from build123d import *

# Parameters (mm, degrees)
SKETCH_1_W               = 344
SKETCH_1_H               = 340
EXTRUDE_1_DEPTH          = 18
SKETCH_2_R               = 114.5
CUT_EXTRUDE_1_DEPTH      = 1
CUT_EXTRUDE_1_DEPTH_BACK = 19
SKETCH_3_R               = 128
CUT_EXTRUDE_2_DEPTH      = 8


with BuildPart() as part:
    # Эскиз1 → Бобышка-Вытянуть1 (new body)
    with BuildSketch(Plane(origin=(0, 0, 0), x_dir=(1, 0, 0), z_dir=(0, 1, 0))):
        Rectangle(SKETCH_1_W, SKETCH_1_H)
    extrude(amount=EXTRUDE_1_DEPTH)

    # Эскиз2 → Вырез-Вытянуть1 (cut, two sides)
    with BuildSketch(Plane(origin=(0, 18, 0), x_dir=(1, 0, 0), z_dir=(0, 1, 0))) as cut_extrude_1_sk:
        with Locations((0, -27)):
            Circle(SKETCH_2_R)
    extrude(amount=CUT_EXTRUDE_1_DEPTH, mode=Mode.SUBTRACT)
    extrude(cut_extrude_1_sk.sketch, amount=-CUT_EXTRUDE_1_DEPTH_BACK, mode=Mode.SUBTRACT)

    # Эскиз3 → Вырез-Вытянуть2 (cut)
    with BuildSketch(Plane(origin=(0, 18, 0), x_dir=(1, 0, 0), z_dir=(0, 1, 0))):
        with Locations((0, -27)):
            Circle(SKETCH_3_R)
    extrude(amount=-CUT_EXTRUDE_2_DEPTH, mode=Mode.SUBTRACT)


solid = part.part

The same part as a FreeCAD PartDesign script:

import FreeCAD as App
import Part
import Sketcher
from FreeCAD import Vector

doc = App.newDocument("Part")
params = doc.addObject("Spreadsheet::Sheet", "Params")
for row, (alias, value) in enumerate([
    ("sketch1_width", "344 mm"),
    ("sketch1_height", "340 mm"),
    ("pad1_length", "18 mm"),
    ("sketch2_diameter", "229 mm"),
    ("sketch3_diameter", "256 mm"),
    ("pocket2_length", "8 mm"),
], start=1):
    params.set(f"A{row}", alias)
    params.set(f"B{row}", "=" + value)
    params.setAlias(f"B{row}", alias)

body = doc.addObject("PartDesign::Body", "Body")

sketch1 = body.newObject("Sketcher::SketchObject", "Sketch")
sketch1.AttachmentSupport = (doc.getObject("XZ_Plane"), [""])
sketch1.MapMode = "FlatFace"
sketch1.addGeometry(Part.LineSegment(Vector(-172, -170, 0), Vector(-172, 170, 0)), False)
sketch1.addGeometry(Part.LineSegment(Vector(-172, 170, 0), Vector(172, 170, 0)), False)
sketch1.addGeometry(Part.LineSegment(Vector(172, 170, 0), Vector(172, -170, 0)), False)
sketch1.addGeometry(Part.LineSegment(Vector(172, -170, 0), Vector(-172, -170, 0)), False)
sketch1.addConstraint(Sketcher.Constraint("Coincident", 0, 2, 1, 1))
sketch1.addConstraint(Sketcher.Constraint("Coincident", 1, 2, 2, 1))
sketch1.addConstraint(Sketcher.Constraint("Coincident", 2, 2, 3, 1))
sketch1.addConstraint(Sketcher.Constraint("Coincident", 3, 2, 0, 1))
sketch1.addConstraint(Sketcher.Constraint("Vertical", 0))
sketch1.addConstraint(Sketcher.Constraint("Horizontal", 1))
sketch1.addConstraint(Sketcher.Constraint("Vertical", 2))
sketch1.addConstraint(Sketcher.Constraint("Horizontal", 3))
sketch1.addConstraint(Sketcher.Constraint("Symmetric", 0, 2, 2, 2, -1, 1))
sketch1.addConstraint(Sketcher.Constraint("DistanceX", 1, 1, 1, 2, 344.0))
sketch1.addConstraint(Sketcher.Constraint("DistanceY", 0, 1, 0, 2, 340.0))
sketch1.setExpression("Constraints[9]", "Params.sketch1_width")
sketch1.setExpression("Constraints[10]", "Params.sketch1_height")
pad1 = body.newObject("PartDesign::Pad", "Pad")
pad1.Profile = sketch1
pad1.setExpression("Length", "Params.pad1_length")
pad1.Reversed = True

sketch2 = body.newObject("Sketcher::SketchObject", "Sketch001")
sketch2.AttachmentSupport = (doc.getObject("XZ_Plane"), [""])
sketch2.MapMode = "FlatFace"
sketch2.AttachmentOffset = App.Placement(Vector(0, 0, -18), App.Rotation())
sketch2.addGeometry(Part.Circle(Vector(0, 27, 0), Vector(0, 0, 1), 114), False)
sketch2.addConstraint(Sketcher.Constraint("PointOnObject", 0, 3, -2))
sketch2.addConstraint(Sketcher.Constraint("Diameter", 0, 229.0))
sketch2.addConstraint(Sketcher.Constraint("DistanceY", -1, 1, 0, 3, 27.0))
sketch2.setExpression("Constraints[1]", "Params.sketch2_diameter")
pocket1 = body.newObject("PartDesign::Pocket", "Pocket")
pocket1.Profile = sketch2
pocket1.Type = "ThroughAll"
pocket1.Midplane = True

sketch3 = body.newObject("Sketcher::SketchObject", "Sketch002")
sketch3.AttachmentSupport = (doc.getObject("XZ_Plane"), [""])
sketch3.MapMode = "FlatFace"
sketch3.AttachmentOffset = App.Placement(Vector(0, 0, -18), App.Rotation())
sketch3.addGeometry(Part.Circle(Vector(0, 27, 0), Vector(0, 0, 1), 128), False)
sketch3.addConstraint(Sketcher.Constraint("PointOnObject", 0, 3, -2))
sketch3.addConstraint(Sketcher.Constraint("Diameter", 0, 256.0))
sketch3.addConstraint(Sketcher.Constraint("DistanceY", -1, 1, 0, 3, 27.0))
sketch3.setExpression("Constraints[1]", "Params.sketch3_diameter")
pocket2 = body.newObject("PartDesign::Pocket", "Pocket001")
pocket2.Profile = sketch3
pocket2.setExpression("Length", "Params.pocket2_length")
pocket2.Reversed = True

doc.recompute()
